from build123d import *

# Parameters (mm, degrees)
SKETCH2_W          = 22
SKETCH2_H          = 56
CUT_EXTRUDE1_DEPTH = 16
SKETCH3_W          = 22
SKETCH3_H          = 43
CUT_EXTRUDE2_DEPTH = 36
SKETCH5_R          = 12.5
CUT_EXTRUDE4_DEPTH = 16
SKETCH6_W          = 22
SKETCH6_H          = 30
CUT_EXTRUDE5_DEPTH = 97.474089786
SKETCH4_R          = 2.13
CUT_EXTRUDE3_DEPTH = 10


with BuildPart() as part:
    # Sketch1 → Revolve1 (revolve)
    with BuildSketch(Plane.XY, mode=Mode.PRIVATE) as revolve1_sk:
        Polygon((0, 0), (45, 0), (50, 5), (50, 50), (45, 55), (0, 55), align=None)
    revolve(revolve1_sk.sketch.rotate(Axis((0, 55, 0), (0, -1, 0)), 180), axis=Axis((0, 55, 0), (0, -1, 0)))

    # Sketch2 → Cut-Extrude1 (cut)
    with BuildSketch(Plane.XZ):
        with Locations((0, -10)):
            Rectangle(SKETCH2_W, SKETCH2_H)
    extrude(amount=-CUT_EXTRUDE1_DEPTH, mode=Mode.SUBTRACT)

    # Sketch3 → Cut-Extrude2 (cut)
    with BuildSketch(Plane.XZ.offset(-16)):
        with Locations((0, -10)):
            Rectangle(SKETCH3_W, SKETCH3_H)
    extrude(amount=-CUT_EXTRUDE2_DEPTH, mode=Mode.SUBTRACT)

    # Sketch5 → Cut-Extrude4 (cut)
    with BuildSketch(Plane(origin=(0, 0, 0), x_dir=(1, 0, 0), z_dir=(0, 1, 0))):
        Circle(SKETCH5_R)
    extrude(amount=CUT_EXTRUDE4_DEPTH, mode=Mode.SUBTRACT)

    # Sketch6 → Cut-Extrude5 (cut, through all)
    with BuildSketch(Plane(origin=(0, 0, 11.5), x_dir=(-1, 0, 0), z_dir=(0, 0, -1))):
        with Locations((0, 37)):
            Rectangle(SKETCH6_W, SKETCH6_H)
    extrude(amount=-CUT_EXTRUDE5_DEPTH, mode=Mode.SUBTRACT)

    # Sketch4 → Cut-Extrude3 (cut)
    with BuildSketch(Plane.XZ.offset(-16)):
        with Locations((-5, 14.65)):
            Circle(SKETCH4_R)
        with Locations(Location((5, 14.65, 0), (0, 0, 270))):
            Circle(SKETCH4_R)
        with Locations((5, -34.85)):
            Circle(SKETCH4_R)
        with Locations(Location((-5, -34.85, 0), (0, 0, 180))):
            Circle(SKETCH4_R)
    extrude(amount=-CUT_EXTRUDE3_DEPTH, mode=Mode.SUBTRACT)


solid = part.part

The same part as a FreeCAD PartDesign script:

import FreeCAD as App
import Part
import Sketcher
Q = App.Units.Quantity

doc = App.newDocument("Part")
body = doc.addObject("PartDesign::Body", "Body")

sketch1 = body.newObject("Sketcher::SketchObject", "Sketch")
sketch1.AttachmentSupport = (doc.getObject("XY_Plane"), [""])
sketch1.MapMode = "FlatFace"
sketch1.addGeometry([
    Part.LineSegment(App.Vector(0, 0, 0), App.Vector(45, 0, 0)),
    Part.LineSegment(App.Vector(45, 0, 0), App.Vector(50, 5, 0)),
    Part.LineSegment(App.Vector(50, 5, 0), App.Vector(50, 50, 0)),
    Part.LineSegment(App.Vector(50, 50, 0), App.Vector(45, 55, 0)),
    Part.LineSegment(App.Vector(45, 55, 0), App.Vector(0, 55, 0)),
    Part.LineSegment(App.Vector(0, 55, 0), App.Vector(0, 0, 0)),
], False)
sketch1.addConstraint([
    Sketcher.Constraint("Coincident", 0, 2, 1, 1),
    Sketcher.Constraint("Coincident", 1, 2, 2, 1),
    Sketcher.Constraint("Coincident", 2, 2, 3, 1),
    Sketcher.Constraint("Coincident", 3, 2, 4, 1),
    Sketcher.Constraint("Coincident", 4, 2, 5, 1),
    Sketcher.Constraint("Coincident", 5, 2, 0, 1),
    Sketcher.Constraint("Horizontal", 0),
    Sketcher.Constraint("Vertical", 2),
    Sketcher.Constraint("Horizontal", 4),
    Sketcher.Constraint("Vertical", 5),
    Sketcher.Constraint("Coincident", 5, 2, -1, 1),
    Sketcher.Constraint("Perpendicular", 1, 3),
    Sketcher.Constraint("Vertical", 0, 2, 3, 2),
    Sketcher.Constraint("Equal", 4, 2),
    Sketcher.Constraint("Equal", 1, 3),
    Sketcher.Constraint("DistanceX", 0, 1, 0, 2, Q("45 mm")),
    Sketcher.Constraint("DistanceY", 5, 2, 5, 1, Q("55 mm")),
])
revolution = body.newObject("PartDesign::Revolution", "Revolution")
revolution.Profile = sketch1
revolution.ReferenceAxis = (sketch1, ["V_Axis"])
revolution.Angle = 360

sketch2 = body.newObject("Sketcher::SketchObject", "Sketch001")
sketch2.AttachmentSupport = (doc.getObject("XZ_Plane"), [""])
sketch2.MapMode = "FlatFace"
sketch2.addGeometry([
    Part.LineSegment(App.Vector(-11, 18, 0), App.Vector(-11, -38, 0)),
    Part.LineSegment(App.Vector(-11, -38, 0), App.Vector(11, -38, 0)),
    Part.LineSegment(App.Vector(11, -38, 0), App.Vector(11, 18, 0)),
    Part.LineSegment(App.Vector(11, 18, 0), App.Vector(-11, 18, 0)),
], False)
sketch2.addConstraint([
    Sketcher.Constraint("Coincident", 0, 2, 1, 1),
    Sketcher.Constraint("Coincident", 1, 2, 2, 1),
    Sketcher.Constraint("Coincident", 2, 2, 3, 1),
    Sketcher.Constraint("Coincident", 3, 2, 0, 1),
    Sketcher.Constraint("Vertical", 0),
    Sketcher.Constraint("Horizontal", 1),
    Sketcher.Constraint("Vertical", 2),
    Sketcher.Constraint("Horizontal", 3),
    Sketcher.Constraint("DistanceX", 1, 1, 1, 2, Q("22 mm")),
    Sketcher.Constraint("DistanceY", 0, 2, 0, 1, Q("56 mm")),
    Sketcher.Constraint("DistanceX", 0, 2, -1, 1, Q("11 mm")),
    Sketcher.Constraint("DistanceY", 0, 2, -1, 1, Q("38 mm")),
])
pocket1 = body.newObject("PartDesign::Pocket", "Pocket")
pocket1.Profile = sketch2
pocket1.Length = 16

sketch3 = body.newObject("Sketcher::SketchObject", "Sketch002")
sketch3.AttachmentSupport = (doc.getObject("XZ_Plane"), [""])
sketch3.MapMode = "FlatFace"
sketch3.AttachmentOffset = App.Placement(App.Vector(0, 0, -16), App.Rotation())
sketch3.addGeometry([
    Part.LineSegment(App.Vector(-11, 11.5, 0), App.Vector(-11, -31.5, 0)),
    Part.LineSegment(App.Vector(-11, -31.5, 0), App.Vector(11, -31.5, 0)),
    Part.LineSegment(App.Vector(11, -31.5, 0), App.Vector(11, 11.5, 0)),
    Part.LineSegment(App.Vector(11, 11.5, 0), App.Vector(-11, 11.5, 0)),
], False)
sketch3.addConstraint([
    Sketcher.Constraint("Coincident", 0, 2, 1, 1),
    Sketcher.Constraint("Coincident", 1, 2, 2, 1),
    Sketcher.Constraint("Coincident", 2, 2, 3, 1),
    Sketcher.Constraint("Coincident", 3, 2, 0, 1),
    Sketcher.Constraint("Vertical", 0),
    Sketcher.Constraint("Horizontal", 1),
    Sketcher.Constraint("Vertical", 2),
    Sketcher.Constraint("Horizontal", 3),
    Sketcher.Constraint("DistanceX", 1, 1, 1, 2, Q("22 mm")),
    Sketcher.Constraint("DistanceY", 0, 2, 0, 1, Q("43 mm")),
    Sketcher.Constraint("DistanceX", 0, 2, -1, 1, Q("11 mm")),
    Sketcher.Constraint("DistanceY", 0, 2, -1, 1, Q("31.5 mm")),
])
pocket2 = body.newObject("PartDesign::Pocket", "Pocket001")
pocket2.Profile = sketch3
pocket2.Length = 36

sketch4 = body.newObject("Sketcher::SketchObject", "Sketch003")
sketch4.AttachmentSupport = (doc.getObject("XZ_Plane"), [""])
sketch4.MapMode = "FlatFace"
sketch4.addGeometry(Part.Circle(App.Vector(0, 0, 0), App.Vector(0, 0, 1), 12.5), False)
sketch4.addConstraint([
    Sketcher.Constraint("Coincident", 0, 3, -1, 1),
    Sketcher.Constraint("Diameter", 0, Q("25 mm")),
])
pocket3 = body.newObject("PartDesign::Pocket", "Pocket002")
pocket3.Profile = sketch4
pocket3.Length = 16

sketch5 = body.newObject("Sketcher::SketchObject", "Sketch004")
sketch5.AttachmentSupport = (doc.getObject("XY_Plane"), [""])
sketch5.MapMode = "FlatFace"
sketch5.AttachmentOffset = App.Placement(App.Vector(0, 0, 11.5), App.Rotation())
sketch5.addGeometry([
    Part.LineSegment(App.Vector(11, 52, 0), App.Vector(11, 22, 0)),
    Part.LineSegment(App.Vector(11, 22, 0), App.Vector(-11, 22, 0)),
    Part.LineSegment(App.Vector(-11, 22, 0), App.Vector(-11, 52, 0)),
    Part.LineSegment(App.Vector(-11, 52, 0), App.Vector(11, 52, 0)),
], False)
sketch5.addConstraint([
    Sketcher.Constraint("Coincident", 0, 2, 1, 1),
    Sketcher.Constraint("Coincident", 1, 2, 2, 1),
    Sketcher.Constraint("Coincident", 2, 2, 3, 1),
    Sketcher.Constraint("Coincident", 3, 2, 0, 1),
    Sketcher.Constraint("Vertical", 0),
    Sketcher.Constraint("Horizontal", 1),
    Sketcher.Constraint("Vertical", 2),
    Sketcher.Constraint("Horizontal", 3),
    Sketcher.Constraint("DistanceX", 1, 2, 1, 1, Q("22 mm")),
    Sketcher.Constraint("DistanceY", 0, 2, 0, 1, Q("30 mm")),
    Sketcher.Constraint("DistanceX", -1, 1, 0, 2, Q("11 mm")),
    Sketcher.Constraint("DistanceY", -1, 1, 0, 2, Q("22 mm")),
])
pocket4 = body.newObject("PartDesign::Pocket", "Pocket003")
pocket4.Profile = sketch5
pocket4.Type = "ThroughAll"
pocket4.Reversed = True

sketch6 = body.newObject("Sketcher::SketchObject", "Sketch005")
sketch6.AttachmentSupport = (doc.getObject("XZ_Plane"), [""])
sketch6.MapMode = "FlatFace"
sketch6.AttachmentOffset = App.Placement(App.Vector(0, 0, -16), App.Rotation())
sketch6.addGeometry([
    Part.Circle(App.Vector(-5, 14.65, 0), App.Vector(0, 0, 1), 2.13),
    Part.Circle(App.Vector(5, 14.65, 0), App.Vector(0, 0, 1), 2.13),
    Part.Circle(App.Vector(5, -34.85, 0), App.Vector(0, 0, 1), 2.13),
    Part.Circle(App.Vector(-5, -34.85, 0), App.Vector(0, 0, 1), 2.13),
], False)
sketch6.addConstraint([
    Sketcher.Constraint("Equal", 0, 1),
    Sketcher.Constraint("Equal", 1, 2),
    Sketcher.Constraint("Equal", 2, 3),
    Sketcher.Constraint("Symmetric", 0, 3, 1, 3, -2),
    Sketcher.Constraint("Symmetric", 2, 3, 3, 3, -2),
    Sketcher.Constraint("Vertical", 1, 3, 2, 3),
    Sketcher.Constraint("Diameter", 0, Q("4.26 mm")),
    Sketcher.Constraint("DistanceX", 0, 3, -1, 1, Q("5 mm")),
    Sketcher.Constraint("DistanceY", 2, 3, 1, 3, Q("49.5 mm")),
    Sketcher.Constraint("DistanceY", -1, 1, 0, 3, Q("14.65 mm")),
])
pocket5 = body.newObject("PartDesign::Pocket", "Pocket004")
pocket5.Profile = sketch6
pocket5.Length = 10

doc.recompute()
